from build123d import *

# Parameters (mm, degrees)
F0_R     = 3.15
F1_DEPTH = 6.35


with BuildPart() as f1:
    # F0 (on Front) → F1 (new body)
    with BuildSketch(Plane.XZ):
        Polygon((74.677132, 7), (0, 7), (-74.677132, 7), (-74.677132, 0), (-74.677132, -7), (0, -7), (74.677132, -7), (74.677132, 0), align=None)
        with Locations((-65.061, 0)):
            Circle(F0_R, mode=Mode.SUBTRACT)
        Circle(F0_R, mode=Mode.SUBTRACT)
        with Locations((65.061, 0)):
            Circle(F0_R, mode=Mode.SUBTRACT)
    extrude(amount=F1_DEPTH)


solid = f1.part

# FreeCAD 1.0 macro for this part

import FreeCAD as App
import Part
import Sketcher
from FreeCAD import Vector

doc = App.newDocument("Part")
body = doc.addObject("PartDesign::Body", "Body")

# Sketch on XZ plane
sketch1 = doc.addObject("Sketcher::SketchObject", "Sketch")
body.addObject(sketch1)
sketch1.AttachmentSupport = (doc.XZ_Plane, [""])
sketch1.MapMode = "FlatFace"
sketch1.addGeometry([
    Part.LineSegment(Vector(74.7, 7, 0), Vector(-74.7, 7, 0)),  # 0
    Part.LineSegment(Vector(-74.7, 7, 0), Vector(-74.7, -7, 0)),  # 1
    Part.LineSegment(Vector(-74.7, -7, 0), Vector(74.7, -7, 0)),  # 2
    Part.LineSegment(Vector(74.7, -7, 0), Vector(74.7, 7, 0)),  # 3
    Part.Circle(Vector(-65.1, 0, 0), Vector(0, 0, 1), 3.1),  # 4
    Part.Circle(Vector(0, 0, 0), Vector(0, 0, 1), 3.1),  # 5
    Part.Circle(Vector(65.1, 0, 0), Vector(0, 0, 1), 3.1),  # 6
], False)
sketch1.addConstraint([
    Sketcher.Constraint("Coincident", 0, 2, 1, 1),
    Sketcher.Constraint("Coincident", 1, 2, 2, 1),
    Sketcher.Constraint("Coincident", 2, 2, 3, 1),
    Sketcher.Constraint("Coincident", 3, 2, 0, 1),
    Sketcher.Constraint("Horizontal", 0),
    Sketcher.Constraint("Vertical", 1),
    Sketcher.Constraint("Horizontal", 2),
    Sketcher.Constraint("Vertical", 3),
    Sketcher.Constraint("Coincident", 5, 3, -1, 1),
    Sketcher.Constraint("Equal", 4, 5),
    Sketcher.Constraint("Equal", 5, 6),
    Sketcher.Constraint("Symmetric", 4, 3, 6, 3, -1, 1),
    Sketcher.Constraint("Symmetric", 0, 2, 2, 2, -1, 1),
    Sketcher.Constraint("PointOnObject", 4, 3, -1),
    Sketcher.Constraint("Diameter", 4, 6.3),
    Sketcher.Constraint("DistanceY", 1, 2, 1, 1, 14.0),
    Sketcher.Constraint("DistanceX", 4, 3, -1, 1, 65.061),
    Sketcher.Constraint("DistanceX", 0, 2, 0, 1, 149.354264),
])
pad1 = doc.addObject("PartDesign::Pad", "Pad")
body.addObject(pad1)
pad1.Profile = sketch1
pad1.Length = 6.35

doc.recompute()
